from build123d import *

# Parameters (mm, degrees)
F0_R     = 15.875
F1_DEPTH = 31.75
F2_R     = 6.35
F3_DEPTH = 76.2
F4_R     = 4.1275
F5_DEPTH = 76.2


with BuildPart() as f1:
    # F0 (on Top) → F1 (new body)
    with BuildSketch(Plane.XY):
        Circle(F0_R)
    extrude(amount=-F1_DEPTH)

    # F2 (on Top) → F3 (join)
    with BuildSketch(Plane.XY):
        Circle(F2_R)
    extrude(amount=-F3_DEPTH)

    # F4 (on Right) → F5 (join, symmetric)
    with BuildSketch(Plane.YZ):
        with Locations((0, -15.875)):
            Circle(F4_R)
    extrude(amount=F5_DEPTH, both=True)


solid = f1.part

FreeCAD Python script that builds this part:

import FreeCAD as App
import Part
import Sketcher
Q = App.Units.Quantity

doc = App.newDocument("Part")
body = doc.addObject("PartDesign::Body", "Body")

sketch1 = body.newObject("Sketcher::SketchObject", "Sketch")
sketch1.AttachmentSupport = (doc.getObject("XY_Plane"), [""])
sketch1.MapMode = "FlatFace"
sketch1.addGeometry(Part.Circle(App.Vector(0, 0, 0), App.Vector(0, 0, 1), 16), False)
sketch1.addConstraint(Sketcher.Constraint("Coincident", 0, 3, -1, 1))
sketch1.addConstraint(Sketcher.Constraint("Diameter", 0, Q("1.25 in")))
pad1 = body.newObject("PartDesign::Pad", "Pad")
pad1.Profile = sketch1
pad1.Length = Q("1.25 in")
pad1.Reversed = True

sketch2 = body.newObject("Sketcher::SketchObject", "Sketch001")
sketch2.AttachmentSupport = (doc.getObject("XY_Plane"), [""])
sketch2.MapMode = "FlatFace"
sketch2.addGeometry(Part.Circle(App.Vector(0, 0, 0), App.Vector(0, 0, 1), 6), False)
sketch2.addConstraint(Sketcher.Constraint("Coincident", 0, 3, -1, 1))
sketch2.addConstraint(Sketcher.Constraint("Diameter", 0, Q("0.5 in")))
pad2 = body.newObject("PartDesign::Pad", "Pad001")
pad2.Profile = sketch2
pad2.Length = Q("3 in")
pad2.Reversed = True

sketch3 = body.newObject("Sketcher::SketchObject", "Sketch002")
sketch3.AttachmentSupport = (doc.getObject("YZ_Plane"), [""])
sketch3.MapMode = "FlatFace"
sketch3.addGeometry(Part.Circle(App.Vector(0, -15.9, 0), App.Vector(0, 0, 1), 4.1), False)
sketch3.addConstraint(Sketcher.Constraint("PointOnObject", 0, 3, -2))
sketch3.addConstraint(Sketcher.Constraint("Diameter", 0, Q("0.325 in")))
sketch3.addConstraint(Sketcher.Constraint("DistanceY", 0, 3, -1, 1, Q("0.625 in")))
pad3 = body.newObject("PartDesign::Pad", "Pad002")
pad3.Profile = sketch3
pad3.Length = Q("6 in")
pad3.Midplane = True

doc.recompute()
